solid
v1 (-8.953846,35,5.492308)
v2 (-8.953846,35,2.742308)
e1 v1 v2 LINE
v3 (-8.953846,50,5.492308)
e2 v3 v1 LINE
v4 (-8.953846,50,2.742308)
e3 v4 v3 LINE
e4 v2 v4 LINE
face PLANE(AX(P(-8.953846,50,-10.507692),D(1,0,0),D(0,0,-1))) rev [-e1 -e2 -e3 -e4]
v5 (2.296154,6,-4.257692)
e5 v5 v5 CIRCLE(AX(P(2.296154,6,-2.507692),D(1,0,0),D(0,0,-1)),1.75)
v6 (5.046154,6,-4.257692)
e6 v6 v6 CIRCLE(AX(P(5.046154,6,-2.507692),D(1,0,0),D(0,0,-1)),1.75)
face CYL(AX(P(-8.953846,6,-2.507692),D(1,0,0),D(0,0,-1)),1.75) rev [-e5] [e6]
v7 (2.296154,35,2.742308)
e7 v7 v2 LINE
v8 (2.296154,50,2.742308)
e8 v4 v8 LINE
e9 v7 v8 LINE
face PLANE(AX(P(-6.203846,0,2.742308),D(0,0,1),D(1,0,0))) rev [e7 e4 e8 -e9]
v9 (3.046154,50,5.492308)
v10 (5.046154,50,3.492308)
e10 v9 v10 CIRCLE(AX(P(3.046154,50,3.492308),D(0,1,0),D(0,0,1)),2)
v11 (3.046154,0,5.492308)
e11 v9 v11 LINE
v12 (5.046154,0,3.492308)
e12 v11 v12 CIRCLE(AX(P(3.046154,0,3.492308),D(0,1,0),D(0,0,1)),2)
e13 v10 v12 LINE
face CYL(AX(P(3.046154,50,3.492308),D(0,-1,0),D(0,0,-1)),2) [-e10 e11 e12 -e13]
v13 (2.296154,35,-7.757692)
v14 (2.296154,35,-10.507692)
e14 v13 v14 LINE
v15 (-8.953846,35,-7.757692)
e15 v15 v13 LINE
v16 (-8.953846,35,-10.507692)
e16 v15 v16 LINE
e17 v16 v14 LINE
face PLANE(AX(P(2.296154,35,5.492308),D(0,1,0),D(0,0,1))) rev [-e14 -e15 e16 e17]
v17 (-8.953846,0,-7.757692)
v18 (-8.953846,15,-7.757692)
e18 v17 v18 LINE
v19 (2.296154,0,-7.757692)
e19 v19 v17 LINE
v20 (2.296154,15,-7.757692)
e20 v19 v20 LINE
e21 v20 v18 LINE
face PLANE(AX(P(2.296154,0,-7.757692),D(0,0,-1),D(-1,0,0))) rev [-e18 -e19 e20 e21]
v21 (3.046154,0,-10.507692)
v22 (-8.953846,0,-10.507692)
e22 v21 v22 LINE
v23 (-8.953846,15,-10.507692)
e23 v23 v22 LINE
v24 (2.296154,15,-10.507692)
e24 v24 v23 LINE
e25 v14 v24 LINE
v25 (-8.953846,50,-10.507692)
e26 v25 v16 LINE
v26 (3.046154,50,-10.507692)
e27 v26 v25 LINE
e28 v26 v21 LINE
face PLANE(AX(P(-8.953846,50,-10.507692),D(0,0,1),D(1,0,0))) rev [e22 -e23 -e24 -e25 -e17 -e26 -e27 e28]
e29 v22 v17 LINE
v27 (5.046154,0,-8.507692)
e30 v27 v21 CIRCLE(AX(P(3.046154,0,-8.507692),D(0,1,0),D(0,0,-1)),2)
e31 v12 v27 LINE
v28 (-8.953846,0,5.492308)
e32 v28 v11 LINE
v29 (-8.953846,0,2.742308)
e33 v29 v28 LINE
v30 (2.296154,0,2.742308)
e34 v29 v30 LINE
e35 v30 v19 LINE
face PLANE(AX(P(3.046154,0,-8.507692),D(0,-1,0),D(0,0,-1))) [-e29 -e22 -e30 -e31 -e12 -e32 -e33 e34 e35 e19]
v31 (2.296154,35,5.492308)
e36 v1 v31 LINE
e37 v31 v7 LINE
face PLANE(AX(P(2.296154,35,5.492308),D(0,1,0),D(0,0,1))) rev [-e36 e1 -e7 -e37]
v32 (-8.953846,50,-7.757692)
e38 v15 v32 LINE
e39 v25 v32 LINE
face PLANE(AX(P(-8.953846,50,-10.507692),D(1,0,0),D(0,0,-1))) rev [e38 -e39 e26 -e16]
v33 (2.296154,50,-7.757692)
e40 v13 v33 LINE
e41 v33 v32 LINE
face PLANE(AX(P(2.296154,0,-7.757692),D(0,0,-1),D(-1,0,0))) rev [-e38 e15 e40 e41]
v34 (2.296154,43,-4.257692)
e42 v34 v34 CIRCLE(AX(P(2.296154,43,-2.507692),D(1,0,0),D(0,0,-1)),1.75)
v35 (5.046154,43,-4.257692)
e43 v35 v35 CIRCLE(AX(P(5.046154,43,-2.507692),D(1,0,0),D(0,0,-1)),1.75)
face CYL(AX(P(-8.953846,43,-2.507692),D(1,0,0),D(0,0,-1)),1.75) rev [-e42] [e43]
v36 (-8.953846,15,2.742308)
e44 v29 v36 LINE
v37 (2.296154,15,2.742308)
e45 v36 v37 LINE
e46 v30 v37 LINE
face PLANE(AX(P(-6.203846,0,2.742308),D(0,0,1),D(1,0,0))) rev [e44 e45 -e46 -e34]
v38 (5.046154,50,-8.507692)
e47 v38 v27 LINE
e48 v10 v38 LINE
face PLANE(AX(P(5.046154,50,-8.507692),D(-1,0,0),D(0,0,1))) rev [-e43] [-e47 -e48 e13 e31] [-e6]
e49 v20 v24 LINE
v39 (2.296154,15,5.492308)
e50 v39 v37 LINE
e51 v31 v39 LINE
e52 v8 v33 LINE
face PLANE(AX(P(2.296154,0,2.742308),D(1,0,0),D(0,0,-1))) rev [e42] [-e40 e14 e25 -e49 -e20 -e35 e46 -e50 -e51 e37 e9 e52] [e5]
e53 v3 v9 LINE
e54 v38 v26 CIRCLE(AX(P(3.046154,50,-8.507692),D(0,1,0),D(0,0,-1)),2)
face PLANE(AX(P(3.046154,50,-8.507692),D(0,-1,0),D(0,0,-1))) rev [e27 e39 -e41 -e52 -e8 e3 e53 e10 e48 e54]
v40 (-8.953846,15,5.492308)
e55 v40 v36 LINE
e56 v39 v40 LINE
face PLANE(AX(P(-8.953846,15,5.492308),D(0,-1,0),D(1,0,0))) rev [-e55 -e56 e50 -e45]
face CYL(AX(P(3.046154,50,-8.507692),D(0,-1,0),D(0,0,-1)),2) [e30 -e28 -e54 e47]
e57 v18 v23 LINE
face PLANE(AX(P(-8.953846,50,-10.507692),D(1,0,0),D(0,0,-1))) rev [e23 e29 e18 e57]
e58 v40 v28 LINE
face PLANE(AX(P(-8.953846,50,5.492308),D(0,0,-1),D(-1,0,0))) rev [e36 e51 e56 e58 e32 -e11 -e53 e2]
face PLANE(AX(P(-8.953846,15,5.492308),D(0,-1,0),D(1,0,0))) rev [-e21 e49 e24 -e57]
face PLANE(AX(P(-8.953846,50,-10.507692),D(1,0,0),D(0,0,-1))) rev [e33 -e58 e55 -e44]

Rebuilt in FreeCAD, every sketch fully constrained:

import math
import FreeCAD as App
import Part
import Sketcher
from FreeCAD import Vector


def add_polygon(sketch, points):
    """Adds a closed chain of lines whose ends are joined by coincident constraints."""
    first, n = sketch.GeometryCount, len(points)
    for a, b in zip(points, points[1:] + points[:1]):
        sketch.addGeometry(Part.LineSegment(App.Vector(*a, 0), App.Vector(*b, 0)), False)
    for i in range(n):
        sketch.addConstraint(Sketcher.Constraint("Coincident", first + i, 2, first + (i + 1) % n, 1))

doc = App.newDocument("Part")
body = doc.addObject("PartDesign::Body", "Body")

# Sketch on XZ plane
sketch1 = doc.addObject("Sketcher::SketchObject", "Sketch")
body.addObject(sketch1)
sketch1.AttachmentSupport = (doc.XZ_Plane, [""])
sketch1.MapMode = "FlatFace"
sketch1.addGeometry([
    Part.LineSegment(Vector(-8.953846, -10.507692, 0), Vector(-8.953846, 5.492308, 0)),  # 0
    Part.LineSegment(Vector(-8.953846, 5.492308, 0), Vector(3.046154, 5.492308, 0)),  # 1
    Part.ArcOfCircle(Part.Circle(Vector(3.046154, 3.492308, 0), Vector(0, 0, 1), 2), math.radians(0), math.radians(90)),  # 2
    Part.LineSegment(Vector(5.046154, 3.492308, 0), Vector(5.046154, -8.507692, 0)),  # 3
    Part.ArcOfCircle(Part.Circle(Vector(3.046154, -8.507692, 0), Vector(0, 0, 1), 2), math.radians(-90), math.radians(0)),  # 4
    Part.LineSegment(Vector(3.046154, -10.507692, 0), Vector(-8.953846, -10.507692, 0)),  # 5
], False)
sketch1.addConstraint([
    Sketcher.Constraint("Coincident", 0, 2, 1, 1),
    Sketcher.Constraint("Tangent", 1, 2, 2, 2),
    Sketcher.Constraint("Tangent", 2, 1, 3, 1),
    Sketcher.Constraint("Tangent", 3, 2, 4, 2),
    Sketcher.Constraint("Tangent", 4, 1, 5, 1),
    Sketcher.Constraint("Coincident", 5, 2, 0, 1),
    Sketcher.Constraint("Vertical", 0),
    Sketcher.Constraint("Horizontal", 1),
    Sketcher.Constraint("Vertical", 3),
    Sketcher.Constraint("Horizontal", 5),
    Sketcher.Constraint("Equal", 2, 4),
    Sketcher.Constraint("Equal", 5, 3),
    Sketcher.Constraint("Radius", 2, 2.0),
    Sketcher.Constraint("DistanceX", 1, 1, 1, 2, 12.0),
    Sketcher.Constraint("DistanceX", -1, 1, 2, 3, 3.046154),
    Sketcher.Constraint("DistanceY", -1, 1, 2, 3, 3.492308),
])
pad1 = doc.addObject("PartDesign::Pad", "Pad")
body.addObject(pad1)
pad1.Profile = sketch1
pad1.Length = 50
pad1.Reversed = True

# Sketch on XZ plane
sketch2 = doc.addObject("Sketcher::SketchObject", "Sketch001")
body.addObject(sketch2)
sketch2.AttachmentSupport = (doc.XZ_Plane, [""])
sketch2.MapMode = "FlatFace"
sketch2.AttachmentOffset = App.Placement(Vector(0, 0, -50), App.Rotation())
add_polygon(sketch2, [(-6.203846, -7.757692), (-6.203846, 2.742308), (2.296154, 2.742308), (2.296154, -7.757692)])  # lines 0-3
sketch2.addConstraint([
    Sketcher.Constraint("Vertical", 0),
    Sketcher.Constraint("Horizontal", 1),
    Sketcher.Constraint("Vertical", 2),
    Sketcher.Constraint("Horizontal", 3),
    Sketcher.Constraint("DistanceX", 1, 1, 1, 2, 8.5),
    Sketcher.Constraint("DistanceY", 0, 1, 0, 2, 10.5),
    Sketcher.Constraint("DistanceX", 0, 2, -1, 1, 6.203846),
    Sketcher.Constraint("DistanceY", -1, 1, 0, 2, 2.742308),
])
pocket1 = doc.addObject("PartDesign::Pocket", "Pocket")
body.addObject(pocket1)
pocket1.Profile = sketch2
pocket1.Type = "ThroughAll"
pocket1.Reversed = True

# Sketch on XZ plane
sketch3 = doc.addObject("Sketcher::SketchObject", "Sketch002")
body.addObject(sketch3)
sketch3.AttachmentSupport = (doc.XZ_Plane, [""])
sketch3.MapMode = "FlatFace"
sketch3.AttachmentOffset = App.Placement(Vector(0, 0, -50), App.Rotation())
add_polygon(sketch3, [(-8.953846, -7.757692), (-8.953846, 2.742308), (-6.203846, 2.742308), (-6.203846, -7.757692)])  # lines 0-3
sketch3.addConstraint([
    Sketcher.Constraint("Vertical", 0),
    Sketcher.Constraint("Horizontal", 1),
    Sketcher.Constraint("Vertical", 2),
    Sketcher.Constraint("Horizontal", 3),
    Sketcher.Constraint("DistanceY", 0, 1, 0, 2, 10.5),
    Sketcher.Constraint("DistanceX", 1, 1, 1, 2, 2.75),
    Sketcher.Constraint("DistanceX", 0, 2, -1, 1, 8.953846),
    Sketcher.Constraint("DistanceY", -1, 1, 0, 2, 2.742308),
])
pocket2 = doc.addObject("PartDesign::Pocket", "Pocket001")
body.addObject(pocket2)
pocket2.Profile = sketch3
pocket2.Type = "ThroughAll"
pocket2.Reversed = True

# Sketch on YZ plane
sketch4 = doc.addObject("Sketcher::SketchObject", "Sketch003")
body.addObject(sketch4)
sketch4.AttachmentSupport = (doc.YZ_Plane, [""])
sketch4.MapMode = "FlatFace"
sketch4.AttachmentOffset = App.Placement(Vector(0, 0, 5.046154), App.Rotation())
sketch4.addGeometry([
    Part.Circle(Vector(43, -2.507692, 0), Vector(0, 0, 1), 1.75),
    Part.Circle(Vector(6, -2.507692, 0), Vector(0, 0, 1), 1.75),
], False)
sketch4.addConstraint([
    Sketcher.Constraint("Equal", 0, 1),
    Sketcher.Constraint("Horizontal", 0, 3, 1, 3),
    Sketcher.Constraint("Diameter", 0, 3.5),
    Sketcher.Constraint("DistanceX", -1, 1, 0, 3, 43.0),
    Sketcher.Constraint("DistanceX", -1, 1, 1, 3, 6.0),
    Sketcher.Constraint("DistanceY", 0, 3, -1, 1, 2.507692),
])
pocket3 = doc.addObject("PartDesign::Pocket", "Pocket002")
body.addObject(pocket3)
pocket3.Profile = sketch4
pocket3.Type = "ThroughAll"

# Sketch on XY plane
sketch5 = doc.addObject("Sketcher::SketchObject", "Sketch004")
body.addObject(sketch5)
sketch5.AttachmentSupport = (doc.XY_Plane, [""])
sketch5.MapMode = "FlatFace"
sketch5.AttachmentOffset = App.Placement(Vector(0, 0, -10.507692), App.Rotation())
add_polygon(sketch5, [(2.296154, 35), (2.296154, 15), (-8.953846, 15), (-8.953846, 35)])  # lines 0-3
sketch5.addConstraint([
    Sketcher.Constraint("Vertical", 0),
    Sketcher.Constraint("Horizontal", 1),
    Sketcher.Constraint("Vertical", 2),
    Sketcher.Constraint("Horizontal", 3),
    Sketcher.Constraint("DistanceY", 0, 2, 0, 1, 20.0),
    Sketcher.Constraint("DistanceY", -1, 1, 0, 2, 15.0),
    Sketcher.Constraint("DistanceX", 1, 2, 1, 1, 11.25),
    Sketcher.Constraint("DistanceX", -1, 1, 0, 2, 2.296154),
])
pocket4 = doc.addObject("PartDesign::Pocket", "Pocket003")
body.addObject(pocket4)
pocket4.Profile = sketch5
pocket4.Type = "ThroughAll"
pocket4.Reversed = True

doc.recompute()
